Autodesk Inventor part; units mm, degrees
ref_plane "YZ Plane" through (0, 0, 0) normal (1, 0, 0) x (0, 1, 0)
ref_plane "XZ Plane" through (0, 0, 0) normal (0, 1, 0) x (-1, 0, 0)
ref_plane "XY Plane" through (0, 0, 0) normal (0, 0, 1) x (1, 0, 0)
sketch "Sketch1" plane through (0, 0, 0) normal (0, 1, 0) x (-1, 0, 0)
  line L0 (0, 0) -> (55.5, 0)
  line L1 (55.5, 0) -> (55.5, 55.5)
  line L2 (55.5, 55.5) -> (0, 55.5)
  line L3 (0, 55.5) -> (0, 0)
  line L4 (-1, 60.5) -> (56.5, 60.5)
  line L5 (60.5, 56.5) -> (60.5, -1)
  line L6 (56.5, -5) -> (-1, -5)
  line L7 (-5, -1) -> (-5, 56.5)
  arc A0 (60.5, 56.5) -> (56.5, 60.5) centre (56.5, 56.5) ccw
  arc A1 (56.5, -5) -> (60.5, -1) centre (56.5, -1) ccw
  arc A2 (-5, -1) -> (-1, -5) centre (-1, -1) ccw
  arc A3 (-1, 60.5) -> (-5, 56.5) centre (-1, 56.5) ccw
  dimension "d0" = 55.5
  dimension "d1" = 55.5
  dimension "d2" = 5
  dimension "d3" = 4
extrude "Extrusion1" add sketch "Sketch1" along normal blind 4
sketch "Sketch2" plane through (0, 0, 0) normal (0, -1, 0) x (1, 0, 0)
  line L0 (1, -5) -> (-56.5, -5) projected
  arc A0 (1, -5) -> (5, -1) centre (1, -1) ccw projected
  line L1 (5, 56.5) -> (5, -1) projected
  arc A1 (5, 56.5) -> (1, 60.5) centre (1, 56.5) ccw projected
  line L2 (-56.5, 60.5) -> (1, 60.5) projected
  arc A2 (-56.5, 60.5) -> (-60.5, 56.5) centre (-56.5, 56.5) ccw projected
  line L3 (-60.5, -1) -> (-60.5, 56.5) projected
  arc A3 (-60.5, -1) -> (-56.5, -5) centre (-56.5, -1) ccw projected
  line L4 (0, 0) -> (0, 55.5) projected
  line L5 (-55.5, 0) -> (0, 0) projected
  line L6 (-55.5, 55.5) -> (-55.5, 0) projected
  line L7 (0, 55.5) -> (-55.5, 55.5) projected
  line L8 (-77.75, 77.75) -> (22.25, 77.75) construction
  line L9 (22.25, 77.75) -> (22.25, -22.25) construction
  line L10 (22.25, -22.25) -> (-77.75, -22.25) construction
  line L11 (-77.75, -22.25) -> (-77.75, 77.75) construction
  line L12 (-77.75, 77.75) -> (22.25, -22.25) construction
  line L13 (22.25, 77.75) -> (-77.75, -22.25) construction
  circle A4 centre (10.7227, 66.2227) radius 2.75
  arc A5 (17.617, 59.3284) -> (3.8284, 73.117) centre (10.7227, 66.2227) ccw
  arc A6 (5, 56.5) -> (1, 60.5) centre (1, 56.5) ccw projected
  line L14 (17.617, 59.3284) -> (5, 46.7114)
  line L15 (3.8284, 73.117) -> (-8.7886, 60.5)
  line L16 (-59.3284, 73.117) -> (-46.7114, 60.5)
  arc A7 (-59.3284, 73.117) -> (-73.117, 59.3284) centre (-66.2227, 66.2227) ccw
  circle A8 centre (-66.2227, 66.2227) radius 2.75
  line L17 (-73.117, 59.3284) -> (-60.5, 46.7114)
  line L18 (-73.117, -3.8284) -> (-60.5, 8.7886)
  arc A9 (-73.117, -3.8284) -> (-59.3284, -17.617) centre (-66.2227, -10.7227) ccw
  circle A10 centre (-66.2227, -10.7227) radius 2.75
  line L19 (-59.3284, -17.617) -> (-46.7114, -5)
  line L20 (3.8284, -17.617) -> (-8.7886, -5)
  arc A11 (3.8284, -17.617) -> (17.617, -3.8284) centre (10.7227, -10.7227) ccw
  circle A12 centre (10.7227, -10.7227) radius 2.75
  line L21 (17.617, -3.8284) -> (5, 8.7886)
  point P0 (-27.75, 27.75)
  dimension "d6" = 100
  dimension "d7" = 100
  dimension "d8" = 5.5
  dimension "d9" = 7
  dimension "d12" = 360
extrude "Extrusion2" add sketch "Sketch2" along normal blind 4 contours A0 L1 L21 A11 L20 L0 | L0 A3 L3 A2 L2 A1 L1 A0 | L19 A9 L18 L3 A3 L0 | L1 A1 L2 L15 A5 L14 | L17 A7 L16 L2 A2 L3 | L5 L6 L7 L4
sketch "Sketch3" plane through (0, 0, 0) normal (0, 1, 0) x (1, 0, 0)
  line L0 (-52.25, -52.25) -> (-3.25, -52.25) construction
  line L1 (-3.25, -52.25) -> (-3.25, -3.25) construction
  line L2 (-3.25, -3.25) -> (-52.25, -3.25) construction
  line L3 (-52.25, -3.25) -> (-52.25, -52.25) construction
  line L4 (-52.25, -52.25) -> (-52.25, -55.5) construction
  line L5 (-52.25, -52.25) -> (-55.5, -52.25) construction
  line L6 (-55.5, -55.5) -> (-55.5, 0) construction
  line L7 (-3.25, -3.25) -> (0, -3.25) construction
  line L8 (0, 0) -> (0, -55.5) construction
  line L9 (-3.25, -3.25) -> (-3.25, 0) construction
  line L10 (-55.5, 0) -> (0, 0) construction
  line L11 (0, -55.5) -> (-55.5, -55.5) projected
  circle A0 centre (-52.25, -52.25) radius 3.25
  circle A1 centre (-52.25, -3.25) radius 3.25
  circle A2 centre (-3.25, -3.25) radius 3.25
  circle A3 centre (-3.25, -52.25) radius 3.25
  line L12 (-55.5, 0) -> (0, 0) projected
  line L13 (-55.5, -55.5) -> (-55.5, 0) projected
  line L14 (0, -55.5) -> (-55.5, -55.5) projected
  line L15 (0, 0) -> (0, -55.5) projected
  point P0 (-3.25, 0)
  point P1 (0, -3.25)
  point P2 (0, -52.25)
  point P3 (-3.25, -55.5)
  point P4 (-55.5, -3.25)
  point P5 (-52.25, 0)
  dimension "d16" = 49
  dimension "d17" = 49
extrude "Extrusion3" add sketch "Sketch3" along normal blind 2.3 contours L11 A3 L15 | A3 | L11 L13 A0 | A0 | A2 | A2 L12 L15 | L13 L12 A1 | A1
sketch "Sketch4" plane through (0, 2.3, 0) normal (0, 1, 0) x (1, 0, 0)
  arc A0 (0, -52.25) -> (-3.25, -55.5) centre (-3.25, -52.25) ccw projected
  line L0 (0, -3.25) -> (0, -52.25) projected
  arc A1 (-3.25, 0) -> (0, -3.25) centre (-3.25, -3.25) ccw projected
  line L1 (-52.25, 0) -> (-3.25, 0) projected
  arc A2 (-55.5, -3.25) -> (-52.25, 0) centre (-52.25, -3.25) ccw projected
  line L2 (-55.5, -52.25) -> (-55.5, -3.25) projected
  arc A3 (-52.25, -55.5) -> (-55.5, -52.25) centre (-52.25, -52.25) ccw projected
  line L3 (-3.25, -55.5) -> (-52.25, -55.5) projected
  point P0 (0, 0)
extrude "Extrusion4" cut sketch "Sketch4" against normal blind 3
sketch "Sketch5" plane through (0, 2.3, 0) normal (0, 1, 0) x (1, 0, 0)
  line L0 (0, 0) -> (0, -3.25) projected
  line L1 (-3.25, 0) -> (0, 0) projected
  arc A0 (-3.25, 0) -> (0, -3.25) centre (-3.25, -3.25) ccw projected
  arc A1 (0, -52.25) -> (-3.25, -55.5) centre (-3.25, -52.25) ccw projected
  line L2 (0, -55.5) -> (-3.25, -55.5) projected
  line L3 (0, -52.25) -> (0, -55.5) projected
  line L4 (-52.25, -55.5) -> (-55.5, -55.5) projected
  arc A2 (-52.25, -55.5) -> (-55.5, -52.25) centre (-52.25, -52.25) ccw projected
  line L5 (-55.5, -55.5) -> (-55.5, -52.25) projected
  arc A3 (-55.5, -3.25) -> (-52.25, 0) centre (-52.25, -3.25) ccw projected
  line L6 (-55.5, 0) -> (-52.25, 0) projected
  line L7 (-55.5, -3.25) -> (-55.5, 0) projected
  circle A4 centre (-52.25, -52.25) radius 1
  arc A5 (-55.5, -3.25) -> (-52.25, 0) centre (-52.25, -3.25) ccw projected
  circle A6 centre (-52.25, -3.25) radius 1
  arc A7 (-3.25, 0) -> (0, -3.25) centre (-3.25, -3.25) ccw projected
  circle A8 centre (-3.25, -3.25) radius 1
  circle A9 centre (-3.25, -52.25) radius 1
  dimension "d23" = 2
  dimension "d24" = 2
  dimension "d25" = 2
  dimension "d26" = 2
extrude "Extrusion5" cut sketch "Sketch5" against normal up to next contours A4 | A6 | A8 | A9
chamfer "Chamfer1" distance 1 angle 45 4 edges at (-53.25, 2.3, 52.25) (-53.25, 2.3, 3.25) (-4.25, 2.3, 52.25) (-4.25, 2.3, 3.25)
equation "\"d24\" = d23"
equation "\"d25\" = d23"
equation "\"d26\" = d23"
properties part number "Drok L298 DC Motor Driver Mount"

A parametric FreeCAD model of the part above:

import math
import FreeCAD as App
import Part
import Sketcher
from FreeCAD import Vector
Q = App.Units.Quantity


def edges_at(feature, points):
    """Names of the edges that pass closest to the given points."""
    edges = feature.Shape.Edges
    near = lambda p: min(range(len(edges)), key=lambda i: edges[i].distToShape(Part.Vertex(*p))[0])
    return sorted({f"Edge{near(p) + 1}" for p in points})

doc = App.newDocument("Part")
body = doc.addObject("PartDesign::Body", "Body")

# Sketch on XZ plane
sketch1 = doc.addObject("Sketcher::SketchObject", "Sketch")
body.addObject(sketch1)
sketch1.AttachmentSupport = (doc.XZ_Plane, [""])
sketch1.MapMode = "FlatFace"
sketch1.addGeometry(Part.LineSegment(Vector(-56.5, 60.5, 0), Vector(1, 60.5, 0)), False)
sketch1.addGeometry(Part.ArcOfCircle(Part.Circle(Vector(1, 56.5, 0), Vector(0, 0, 1), 4), math.radians(0), math.radians(90)), False)
sketch1.addGeometry(Part.LineSegment(Vector(5, 56.5, 0), Vector(5, -1, 0)), False)
sketch1.addGeometry(Part.ArcOfCircle(Part.Circle(Vector(1, -1, 0), Vector(0, 0, 1), 4), math.radians(-90), math.radians(0)), False)
sketch1.addGeometry(Part.LineSegment(Vector(1, -5, 0), Vector(-56.5, -5, 0)), False)
sketch1.addGeometry(Part.ArcOfCircle(Part.Circle(Vector(-56.5, -1, 0), Vector(0, 0, 1), 4), math.radians(180), math.radians(270)), False)
sketch1.addGeometry(Part.LineSegment(Vector(-60.5, -1, 0), Vector(-60.5, 56.5, 0)), False)
sketch1.addGeometry(Part.ArcOfCircle(Part.Circle(Vector(-56.5, 56.5, 0), Vector(0, 0, 1), 4), math.radians(90), math.radians(180)), False)
sketch1.addGeometry(Part.LineSegment(Vector(-55.5, 0, 0), Vector(0, 0, 0)), False)
sketch1.addGeometry(Part.LineSegment(Vector(0, 0, 0), Vector(0, 55.5, 0)), False)
sketch1.addGeometry(Part.LineSegment(Vector(0, 55.5, 0), Vector(-55.5, 55.5, 0)), False)
sketch1.addGeometry(Part.LineSegment(Vector(-55.5, 55.5, 0), Vector(-55.5, 0, 0)), False)
sketch1.addConstraint(Sketcher.Constraint("Tangent", 0, 2, 1, 2))
sketch1.addConstraint(Sketcher.Constraint("Tangent", 1, 1, 2, 1))
sketch1.addConstraint(Sketcher.Constraint("Tangent", 2, 2, 3, 2))
sketch1.addConstraint(Sketcher.Constraint("Tangent", 3, 1, 4, 1))
sketch1.addConstraint(Sketcher.Constraint("Tangent", 4, 2, 5, 2))
sketch1.addConstraint(Sketcher.Constraint("Tangent", 5, 1, 6, 1))
sketch1.addConstraint(Sketcher.Constraint("Tangent", 6, 2, 7, 2))
sketch1.addConstraint(Sketcher.Constraint("Tangent", 7, 1, 0, 1))
sketch1.addConstraint(Sketcher.Constraint("Coincident", 8, 2, 9, 1))
sketch1.addConstraint(Sketcher.Constraint("Coincident", 9, 2, 10, 1))
sketch1.addConstraint(Sketcher.Constraint("Coincident", 10, 2, 11, 1))
sketch1.addConstraint(Sketcher.Constraint("Coincident", 11, 2, 8, 1))
sketch1.addConstraint(Sketcher.Constraint("Horizontal", 0))
sketch1.addConstraint(Sketcher.Constraint("Vertical", 2))
sketch1.addConstraint(Sketcher.Constraint("Horizontal", 4))
sketch1.addConstraint(Sketcher.Constraint("Vertical", 6))
sketch1.addConstraint(Sketcher.Constraint("Horizontal", 8))
sketch1.addConstraint(Sketcher.Constraint("Vertical", 9))
sketch1.addConstraint(Sketcher.Constraint("Horizontal", 10))
sketch1.addConstraint(Sketcher.Constraint("Vertical", 11))
sketch1.addConstraint(Sketcher.Constraint("Coincident", 8, 2, -1, 1))
sketch1.addConstraint(Sketcher.Constraint("Equal", 1, 3))
sketch1.addConstraint(Sketcher.Constraint("Equal", 3, 5))
sketch1.addConstraint(Sketcher.Constraint("Equal", 5, 7))
sketch1.addConstraint(Sketcher.Constraint("Equal", 4, 2))
sketch1.addConstraint(Sketcher.Constraint("Equal", 10, 9))
sketch1.addConstraint(Sketcher.Constraint("Radius", 1, Q("4 mm")))
sketch1.addConstraint(Sketcher.Constraint("DistanceX", 8, 1, 8, 2, Q("55.5 mm")))
sketch1.addConstraint(Sketcher.Constraint("DistanceX", -1, 1, 1, 1, Q("5 mm")))
sketch1.addConstraint(Sketcher.Constraint("DistanceY", 3, 1, -1, 1, Q("5 mm")))
sketch1.addConstraint(Sketcher.Constraint("DistanceY", 9, 2, 0, 2, Q("5 mm")))
pad1 = doc.addObject("PartDesign::Pad", "Pad")
body.addObject(pad1)
pad1.Profile = sketch1
pad1.Length = 4
pad1.Reversed = True

# Sketch on XZ plane
sketch2 = doc.addObject("Sketcher::SketchObject", "Sketch001")
body.addObject(sketch2)
sketch2.AttachmentSupport = (doc.XZ_Plane, [""])
sketch2.MapMode = "FlatFace"
sketch2.addGeometry(Part.LineSegment(Vector(17.6, -3.8, 0), Vector(5, 8.8, 0)), False)
sketch2.addGeometry(Part.LineSegment(Vector(5, 8.8, 0), Vector(5, 46.7, 0)), False)
sketch2.addGeometry(Part.LineSegment(Vector(5, 46.7, 0), Vector(17.6, 59.3, 0)), False)
sketch2.addGeometry(Part.ArcOfCircle(Part.Circle(Vector(10.7, 66.2, 0), Vector(0, 0, 1), 9.8), math.radians(-45), math.radians(135)), False)
sketch2.addGeometry(Part.LineSegment(Vector(3.8, 73.1, 0), Vector(-8.8, 60.5, 0)), False)
sketch2.addGeometry(Part.LineSegment(Vector(-8.8, 60.5, 0), Vector(-46.7, 60.5, 0)), False)
sketch2.addGeometry(Part.LineSegment(Vector(-46.7, 60.5, 0), Vector(-59.3, 73.1, 0)), False)
sketch2.addGeometry(Part.ArcOfCircle(Part.Circle(Vector(-66.2, 66.2, 0), Vector(0, 0, 1), 9.8), math.radians(45), math.radians(225)), False)
sketch2.addGeometry(Part.LineSegment(Vector(-73.1, 59.3, 0), Vector(-60.5, 46.7, 0)), False)
sketch2.addGeometry(Part.LineSegment(Vector(-60.5, 46.7, 0), Vector(-60.5, 8.8, 0)), False)
sketch2.addGeometry(Part.LineSegment(Vector(-60.5, 8.8, 0), Vector(-73.1, -3.8, 0)), False)
sketch2.addGeometry(Part.ArcOfCircle(Part.Circle(Vector(-66.2, -10.7, 0), Vector(0, 0, 1), 9.8), math.radians(135), math.radians(315)), False)
sketch2.addGeometry(Part.LineSegment(Vector(-59.3, -17.6, 0), Vector(-46.7, -5, 0)), False)
sketch2.addGeometry(Part.LineSegment(Vector(-46.7, -5, 0), Vector(-8.8, -5, 0)), False)
sketch2.addGeometry(Part.LineSegment(Vector(-8.8, -5, 0), Vector(3.8, -17.6, 0)), False)
sketch2.addGeometry(Part.ArcOfCircle(Part.Circle(Vector(10.7, -10.7, 0), Vector(0, 0, 1), 9.8), math.radians(-135), math.radians(45)), False)
sketch2.addGeometry(Part.Circle(Vector(10.7, -10.7, 0), Vector(0, 0, 1), 2.8), False)
sketch2.addGeometry(Part.Circle(Vector(-66.2, -10.7, 0), Vector(0, 0, 1), 2.8), False)
sketch2.addGeometry(Part.Circle(Vector(-66.2, 66.2, 0), Vector(0, 0, 1), 2.8), False)
sketch2.addGeometry(Part.Circle(Vector(10.7, 66.2, 0), Vector(0, 0, 1), 2.8), False)
sketch2.addConstraint(Sketcher.Constraint("Coincident", 0, 2, 1, 1))
sketch2.addConstraint(Sketcher.Constraint("Coincident", 1, 2, 2, 1))
sketch2.addConstraint(Sketcher.Constraint("Tangent", 2, 2, 3, 1))
sketch2.addConstraint(Sketcher.Constraint("Tangent", 3, 2, 4, 1))
sketch2.addConstraint(Sketcher.Constraint("Coincident", 4, 2, 5, 1))
sketch2.addConstraint(Sketcher.Constraint("Coincident", 5, 2, 6, 1))
sketch2.addConstraint(Sketcher.Constraint("Tangent", 6, 2, 7, 1))
sketch2.addConstraint(Sketcher.Constraint("Tangent", 7, 2, 8, 1))
sketch2.addConstraint(Sketcher.Constraint("Coincident", 8, 2, 9, 1))
sketch2.addConstraint(Sketcher.Constraint("Coincident", 9, 2, 10, 1))
sketch2.addConstraint(Sketcher.Constraint("Tangent", 10, 2, 11, 1))
sketch2.addConstraint(Sketcher.Constraint("Tangent", 11, 2, 12, 1))
sketch2.addConstraint(Sketcher.Constraint("Coincident", 12, 2, 13, 1))
sketch2.addConstraint(Sketcher.Constraint("Coincident", 13, 2, 14, 1))
sketch2.addConstraint(Sketcher.Constraint("Tangent", 14, 2, 15, 1))
sketch2.addConstraint(Sketcher.Constraint("Tangent", 15, 2, 0, 1))
sketch2.addConstraint(Sketcher.Constraint("Vertical", 1))
sketch2.addConstraint(Sketcher.Constraint("Horizontal", 5))
sketch2.addConstraint(Sketcher.Constraint("Vertical", 9))
sketch2.addConstraint(Sketcher.Constraint("Horizontal", 13))
sketch2.addConstraint(Sketcher.Constraint("Coincident", 16, 3, 15, 3))
sketch2.addConstraint(Sketcher.Constraint("Coincident", 17, 3, 11, 3))
sketch2.addConstraint(Sketcher.Constraint("Coincident", 18, 3, 7, 3))
sketch2.addConstraint(Sketcher.Constraint("Coincident", 19, 3, 3, 3))
sketch2.addConstraint(Sketcher.Constraint("Equal", 3, 7))
sketch2.addConstraint(Sketcher.Constraint("Equal", 7, 11))
sketch2.addConstraint(Sketcher.Constraint("Equal", 11, 15))
sketch2.addConstraint(Sketcher.Constraint("Equal", 16, 17))
sketch2.addConstraint(Sketcher.Constraint("Equal", 17, 18))
sketch2.addConstraint(Sketcher.Constraint("Equal", 18, 19))
sketch2.addConstraint(Sketcher.Constraint("Perpendicular", 0, 2))
sketch2.addConstraint(Sketcher.Constraint("Parallel", 2, 4))
sketch2.addConstraint(Sketcher.Constraint("Perpendicular", 4, 6))
sketch2.addConstraint(Sketcher.Constraint("Parallel", 6, 8))
sketch2.addConstraint(Sketcher.Constraint("Perpendicular", 8, 10))
sketch2.addConstraint(Sketcher.Constraint("Parallel", 10, 12))
sketch2.addConstraint(Sketcher.Constraint("Perpendicular", 12, 14))
sketch2.addConstraint(Sketcher.Constraint("Horizontal", 3, 3, 7, 3))
sketch2.addConstraint(Sketcher.Constraint("Horizontal", 11, 3, 15, 3))
sketch2.addConstraint(Sketcher.Constraint("Horizontal", 3, 2, 6, 2))
sketch2.addConstraint(Sketcher.Constraint("Horizontal", 1, 2, 8, 2))
sketch2.addConstraint(Sketcher.Constraint("Horizontal", 0, 2, 9, 2))
sketch2.addConstraint(Sketcher.Constraint("Vertical", 7, 3, 11, 3))
sketch2.addConstraint(Sketcher.Constraint("Vertical", 5, 2, 12, 2))
sketch2.addConstraint(Sketcher.Constraint("Equal", 13, 1))
sketch2.addConstraint(Sketcher.Constraint("Equal", 2, 4))
sketch2.addConstraint(Sketcher.Constraint("Diameter", 16, Q("5.5 mm")))
sketch2.addConstraint(Sketcher.Constraint("Radius", 3, Q("9.75 mm")))
sketch2.addConstraint(Sketcher.Constraint("DistanceX", -1, 1, 0, 2, Q("5 mm")))
sketch2.addConstraint(Sketcher.Constraint("DistanceY", 12, 2, -1, 1, Q("5 mm")))
sketch2.addConstraint(Sketcher.Constraint("DistanceY", -1, 1, 4, 2, Q("60.5 mm")))
sketch2.addConstraint(Sketcher.Constraint("DistanceX", -1, 1, 2, 2, Q("17.617 mm")))
pad2 = doc.addObject("PartDesign::Pad", "Pad001")
body.addObject(pad2)
pad2.Profile = sketch2
pad2.Length = 4

# Sketch on XZ plane
sketch3 = doc.addObject("Sketcher::SketchObject", "Sketch002")
body.addObject(sketch3)
sketch3.AttachmentSupport = (doc.XZ_Plane, [""])
sketch3.MapMode = "FlatFace"
sketch3.addGeometry(Part.LineSegment(Vector(-3.2, 55.5, 0), Vector(0, 55.5, 0)), False)
sketch3.addGeometry(Part.LineSegment(Vector(0, 55.5, 0), Vector(0, 52.2, 0)), False)
sketch3.addGeometry(Part.ArcOfCircle(Part.Circle(Vector(-3.2, 52.2, 0), Vector(0, 0, 1), 3.2), math.radians(90), math.radians(360)), False)
sketch3.addGeometry(Part.LineSegment(Vector(-55.5, 55.5, 0), Vector(-52.2, 55.5, 0)), False)
sketch3.addGeometry(Part.ArcOfCircle(Part.Circle(Vector(-52.2, 52.2, 0), Vector(0, 0, 1), 3.2), math.radians(180), math.radians(450)), False)
sketch3.addGeometry(Part.LineSegment(Vector(-55.5, 52.2, 0), Vector(-55.5, 55.5, 0)), False)
sketch3.addGeometry(Part.ArcOfCircle(Part.Circle(Vector(-3.2, 3.2, 0), Vector(0, 0, 1), 3.2), math.radians(0), math.radians(270)), False)
sketch3.addGeometry(Part.LineSegment(Vector(0, 3.2, 0), Vector(0, 0, 0)), False)
sketch3.addGeometry(Part.LineSegment(Vector(0, 0, 0), Vector(-3.3, 0, 0)), False)
sketch3.addGeometry(Part.LineSegment(Vector(-55.5, 0, 0), Vector(-55.5, 3.2, 0)), False)
sketch3.addGeometry(Part.ArcOfCircle(Part.Circle(Vector(-52.2, 3.2, 0), Vector(0, 0, 1), 3.2), math.radians(-90), math.radians(180)), False)
sketch3.addGeometry(Part.LineSegment(Vector(-52.2, 0, 0), Vector(-55.5, 0, 0)), False)
sketch3.addConstraint(Sketcher.Constraint("Coincident", 0, 2, 1, 1))
sketch3.addConstraint(Sketcher.Constraint("Tangent", 1, 2, 2, 2))
sketch3.addConstraint(Sketcher.Constraint("Tangent", 2, 1, 0, 1))
sketch3.addConstraint(Sketcher.Constraint("Tangent", 3, 2, 4, 2))
sketch3.addConstraint(Sketcher.Constraint("Tangent", 4, 1, 5, 1))
sketch3.addConstraint(Sketcher.Constraint("Coincident", 5, 2, 3, 1))
sketch3.addConstraint(Sketcher.Constraint("Tangent", 6, 1, 7, 1))
sketch3.addConstraint(Sketcher.Constraint("Coincident", 7, 2, 8, 1))
sketch3.addConstraint(Sketcher.Constraint("Tangent", 8, 2, 6, 2))
sketch3.addConstraint(Sketcher.Constraint("Tangent", 9, 2, 10, 2))
sketch3.addConstraint(Sketcher.Constraint("Tangent", 10, 1, 11, 1))
sketch3.addConstraint(Sketcher.Constraint("Coincident", 11, 2, 9, 1))
sketch3.addConstraint(Sketcher.Constraint("Horizontal", 0))
sketch3.addConstraint(Sketcher.Constraint("Vertical", 1))
sketch3.addConstraint(Sketcher.Constraint("Horizontal", 3))
sketch3.addConstraint(Sketcher.Constraint("Vertical", 5))
sketch3.addConstraint(Sketcher.Constraint("Vertical", 7))
sketch3.addConstraint(Sketcher.Constraint("Horizontal", 8))
sketch3.addConstraint(Sketcher.Constraint("Vertical", 9))
sketch3.addConstraint(Sketcher.Constraint("Horizontal", 11))
sketch3.addConstraint(Sketcher.Constraint("Coincident", 7, 2, -1, 1))
sketch3.addConstraint(Sketcher.Constraint("Equal", 2, 4))
sketch3.addConstraint(Sketcher.Constraint("Equal", 4, 6))
sketch3.addConstraint(Sketcher.Constraint("Equal", 6, 10))
sketch3.addConstraint(Sketcher.Constraint("PointOnObject", 0, 2, -2))
sketch3.addConstraint(Sketcher.Constraint("PointOnObject", 10, 1, -1))
sketch3.addConstraint(Sketcher.Constraint("Horizontal", 2, 3, 4, 3))
sketch3.addConstraint(Sketcher.Constraint("Vertical", 4, 3, 10, 3))
sketch3.addConstraint(Sketcher.Constraint("DistanceX", 4, 3, 2, 3, Q("49 mm")))
sketch3.addConstraint(Sketcher.Constraint("DistanceY", 6, 3, 2, 3, Q("49 mm")))
sketch3.addConstraint(Sketcher.Constraint("Radius", 2, Q("3.25 mm")))
pad3 = doc.addObject("PartDesign::Pad", "Pad002")
body.addObject(pad3)
pad3.Profile = sketch3
pad3.Length = 2.3
pad3.Reversed = True

# Sketch on XZ plane
sketch4 = doc.addObject("Sketcher::SketchObject", "Sketch003")
body.addObject(sketch4)
sketch4.AttachmentSupport = (doc.XZ_Plane, [""])
sketch4.MapMode = "FlatFace"
sketch4.AttachmentOffset = App.Placement(Vector(0, 0, -2.3), App.Rotation())
sketch4.addGeometry(Part.ArcOfCircle(Part.Circle(Vector(-3.2, 52.2, 0), Vector(0, 0, 1), 3.2), math.radians(90), math.radians(360)), False)
sketch4.addGeometry(Part.LineSegment(Vector(0, 52.2, 0), Vector(0, 3.2, 0)), False)
sketch4.addGeometry(Part.ArcOfCircle(Part.Circle(Vector(-3.2, 3.2, 0), Vector(0, 0, 1), 3.2), math.radians(0), math.radians(270)), False)
sketch4.addGeometry(Part.LineSegment(Vector(-3.2, 0, 0), Vector(-52.2, 0, 0)), False)
sketch4.addGeometry(Part.ArcOfCircle(Part.Circle(Vector(-52.2, 3.2, 0), Vector(0, 0, 1), 3.2), math.radians(-90), math.radians(180)), False)
sketch4.addGeometry(Part.LineSegment(Vector(-55.5, 3.2, 0), Vector(-55.5, 52.2, 0)), False)
sketch4.addGeometry(Part.ArcOfCircle(Part.Circle(Vector(-52.2, 52.2, 0), Vector(0, 0, 1), 3.2), math.radians(180), math.radians(450)), False)
sketch4.addGeometry(Part.LineSegment(Vector(-52.2, 55.5, 0), Vector(-3.2, 55.5, 0)), False)
sketch4.addConstraint(Sketcher.Constraint("Tangent", 0, 2, 1, 1))
sketch4.addConstraint(Sketcher.Constraint("Tangent", 1, 2, 2, 1))
sketch4.addConstraint(Sketcher.Constraint("Tangent", 2, 2, 3, 1))
sketch4.addConstraint(Sketcher.Constraint("Tangent", 3, 2, 4, 1))
sketch4.addConstraint(Sketcher.Constraint("Tangent", 4, 2, 5, 1))
sketch4.addConstraint(Sketcher.Constraint("Tangent", 5, 2, 6, 1))
sketch4.addConstraint(Sketcher.Constraint("Tangent", 6, 2, 7, 1))
sketch4.addConstraint(Sketcher.Constraint("Tangent", 7, 2, 0, 1))
sketch4.addConstraint(Sketcher.Constraint("Vertical", 1))
sketch4.addConstraint(Sketcher.Constraint("Horizontal", 3))
sketch4.addConstraint(Sketcher.Constraint("Vertical", 5))
sketch4.addConstraint(Sketcher.Constraint("Horizontal", 7))
sketch4.addConstraint(Sketcher.Constraint("Equal", 0, 2))
sketch4.addConstraint(Sketcher.Constraint("Equal", 2, 4))
sketch4.addConstraint(Sketcher.Constraint("Equal", 4, 6))
sketch4.addConstraint(Sketcher.Constraint("PointOnObject", 0, 2, -2))
sketch4.addConstraint(Sketcher.Constraint("PointOnObject", 2, 2, -1))
sketch4.addConstraint(Sketcher.Constraint("Equal", 7, 1))
sketch4.addConstraint(Sketcher.Constraint("DistanceX", 3, 2, 3, 1, Q("49 mm")))
sketch4.addConstraint(Sketcher.Constraint("Radius", 0, Q("3.25 mm")))
pocket1 = doc.addObject("PartDesign::Pocket", "Pocket")
body.addObject(pocket1)
pocket1.Profile = sketch4
pocket1.Length = 3
pocket1.Reversed = True

# Sketch on XZ plane
sketch5 = doc.addObject("Sketcher::SketchObject", "Sketch004")
body.addObject(sketch5)
sketch5.AttachmentSupport = (doc.XZ_Plane, [""])
sketch5.MapMode = "FlatFace"
sketch5.AttachmentOffset = App.Placement(Vector(0, 0, -2.3), App.Rotation())
sketch5.addGeometry(Part.Circle(Vector(-52.2, 52.2, 0), Vector(0, 0, 1), 1), False)
sketch5.addGeometry(Part.Circle(Vector(-52.2, 3.2, 0), Vector(0, 0, 1), 1), False)
sketch5.addGeometry(Part.Circle(Vector(-3.2, 3.2, 0), Vector(0, 0, 1), 1), False)
sketch5.addGeometry(Part.Circle(Vector(-3.2, 52.2, 0), Vector(0, 0, 1), 1), False)
sketch5.addConstraint(Sketcher.Constraint("Equal", 0, 1))
sketch5.addConstraint(Sketcher.Constraint("Equal", 1, 2))
sketch5.addConstraint(Sketcher.Constraint("Equal", 2, 3))
sketch5.addConstraint(Sketcher.Constraint("Horizontal", 1, 3, 2, 3))
sketch5.addConstraint(Sketcher.Constraint("Horizontal", 0, 3, 3, 3))
sketch5.addConstraint(Sketcher.Constraint("Vertical", 0, 3, 1, 3))
sketch5.addConstraint(Sketcher.Constraint("Vertical", 2, 3, 3, 3))
sketch5.addConstraint(Sketcher.Constraint("Diameter", 0, Q("2 mm")))
sketch5.addConstraint(Sketcher.Constraint("DistanceY", 1, 3, 0, 3, Q("49 mm")))
sketch5.addConstraint(Sketcher.Constraint("DistanceX", 1, 3, 2, 3, Q("49 mm")))
sketch5.addConstraint(Sketcher.Constraint("DistanceX", 0, 3, -1, 1, Q("52.25 mm")))
sketch5.addConstraint(Sketcher.Constraint("DistanceY", -1, 1, 0, 3, Q("52.25 mm")))
pocket2 = doc.addObject("PartDesign::Pocket", "Pocket001")
body.addObject(pocket2)
pocket2.Profile = sketch5
pocket2.Length = 6.3
pocket2.Reversed = True
doc.recompute()

chamfer = doc.addObject("PartDesign::Chamfer", "Chamfer")
body.addObject(chamfer)
chamfer.Base = (pocket2, edges_at(pocket2, [
    (-53.25, 2.3, 52.25),
    (-53.25, 2.3, 3.25),
    (-4.25, 2.3, 52.25),
    (-4.25, 2.3, 3.25),
]))
chamfer.Size = 1

doc.recompute()
